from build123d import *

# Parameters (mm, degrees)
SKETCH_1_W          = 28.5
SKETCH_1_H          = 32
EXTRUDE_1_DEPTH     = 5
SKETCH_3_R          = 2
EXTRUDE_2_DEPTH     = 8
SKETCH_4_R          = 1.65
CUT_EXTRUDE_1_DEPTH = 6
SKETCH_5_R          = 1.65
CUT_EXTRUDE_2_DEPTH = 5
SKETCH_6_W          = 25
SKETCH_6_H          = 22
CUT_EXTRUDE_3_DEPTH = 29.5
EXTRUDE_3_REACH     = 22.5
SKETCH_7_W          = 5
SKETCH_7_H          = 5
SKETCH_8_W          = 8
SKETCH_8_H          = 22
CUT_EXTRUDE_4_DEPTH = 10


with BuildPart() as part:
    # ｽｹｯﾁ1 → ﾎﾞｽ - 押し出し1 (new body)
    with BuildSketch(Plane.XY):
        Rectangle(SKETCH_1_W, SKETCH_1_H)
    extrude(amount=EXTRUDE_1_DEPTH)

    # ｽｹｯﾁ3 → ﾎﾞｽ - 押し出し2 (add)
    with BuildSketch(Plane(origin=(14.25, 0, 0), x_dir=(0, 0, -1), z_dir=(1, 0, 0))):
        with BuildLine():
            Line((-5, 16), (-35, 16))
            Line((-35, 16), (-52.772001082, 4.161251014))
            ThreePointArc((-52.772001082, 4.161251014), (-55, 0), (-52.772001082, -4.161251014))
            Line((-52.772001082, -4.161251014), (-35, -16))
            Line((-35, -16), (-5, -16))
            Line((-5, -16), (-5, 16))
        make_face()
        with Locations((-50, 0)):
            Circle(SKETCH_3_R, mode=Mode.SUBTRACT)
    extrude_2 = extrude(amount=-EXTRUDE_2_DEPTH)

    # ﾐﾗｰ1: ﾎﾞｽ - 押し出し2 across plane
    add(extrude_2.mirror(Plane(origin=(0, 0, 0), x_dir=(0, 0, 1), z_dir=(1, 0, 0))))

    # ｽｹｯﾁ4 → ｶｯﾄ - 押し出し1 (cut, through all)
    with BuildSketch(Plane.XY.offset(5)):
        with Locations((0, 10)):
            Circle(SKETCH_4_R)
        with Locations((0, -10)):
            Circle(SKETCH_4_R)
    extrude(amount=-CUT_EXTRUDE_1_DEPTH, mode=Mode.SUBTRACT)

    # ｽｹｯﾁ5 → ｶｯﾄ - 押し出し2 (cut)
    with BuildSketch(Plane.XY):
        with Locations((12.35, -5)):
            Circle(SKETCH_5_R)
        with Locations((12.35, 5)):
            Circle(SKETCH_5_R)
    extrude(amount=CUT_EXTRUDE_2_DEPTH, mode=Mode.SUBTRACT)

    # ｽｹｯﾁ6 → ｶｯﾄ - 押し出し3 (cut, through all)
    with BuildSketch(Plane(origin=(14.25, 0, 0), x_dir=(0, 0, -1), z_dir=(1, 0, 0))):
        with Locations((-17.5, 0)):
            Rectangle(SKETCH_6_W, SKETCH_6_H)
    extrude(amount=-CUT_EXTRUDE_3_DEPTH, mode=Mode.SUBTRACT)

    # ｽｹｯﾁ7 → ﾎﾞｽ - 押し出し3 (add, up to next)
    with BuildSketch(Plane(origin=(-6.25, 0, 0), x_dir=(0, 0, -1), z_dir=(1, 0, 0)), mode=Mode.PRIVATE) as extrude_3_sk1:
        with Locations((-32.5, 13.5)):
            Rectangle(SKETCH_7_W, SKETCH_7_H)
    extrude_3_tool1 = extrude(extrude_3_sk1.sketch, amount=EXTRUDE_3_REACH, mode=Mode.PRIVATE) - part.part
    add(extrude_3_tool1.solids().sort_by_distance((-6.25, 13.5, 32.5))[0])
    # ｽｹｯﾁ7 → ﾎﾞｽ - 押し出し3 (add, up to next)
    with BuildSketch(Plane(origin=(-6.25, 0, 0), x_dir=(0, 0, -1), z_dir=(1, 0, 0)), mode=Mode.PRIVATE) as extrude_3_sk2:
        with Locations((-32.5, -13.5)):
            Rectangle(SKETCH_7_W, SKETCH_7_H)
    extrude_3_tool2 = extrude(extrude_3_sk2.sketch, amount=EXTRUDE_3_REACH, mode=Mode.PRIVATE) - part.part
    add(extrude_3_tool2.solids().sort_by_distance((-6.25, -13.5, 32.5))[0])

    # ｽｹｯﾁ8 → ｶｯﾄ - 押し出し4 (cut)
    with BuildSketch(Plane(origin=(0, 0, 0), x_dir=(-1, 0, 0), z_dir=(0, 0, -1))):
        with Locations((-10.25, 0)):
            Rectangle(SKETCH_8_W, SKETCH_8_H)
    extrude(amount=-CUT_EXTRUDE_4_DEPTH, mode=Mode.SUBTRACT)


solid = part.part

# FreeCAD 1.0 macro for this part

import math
import FreeCAD as App
import Part
import Sketcher

V = App.Vector

doc = App.newDocument("Part")
params = doc.addObject("Spreadsheet::Sheet", "Params")
for row, (alias, value) in enumerate([
    ("sketch1_height", "32 mm"),
    ("sketch1_width", "28.5 mm"),
    ("pad1_length", "5 mm"),
    ("sketch2_diameter", "4 mm"),
    ("sketch2_radius", "5 mm"),
    ("sketch2_width", "32 mm"),
    ("sketch2_height", "30 mm"),
    ("pad2_length", "8 mm"),
    ("sketch3_diameter", "3.3 mm"),
    ("sketch4_diameter", "3.3 mm"),
    ("pocket2_length", "5 mm"),
    ("sketch5_width", "22 mm"),
    ("sketch5_height", "25 mm"),
    ("sketch6_width", "5 mm"),
    ("sketch7_width", "5 mm"),
    ("sketch8_width", "8 mm"),
    ("sketch8_height", "22 mm"),
    ("pocket4_length", "10 mm"),
], start=1):
    params.set(f"A{row}", alias)
    params.set(f"B{row}", "=" + value)
    params.setAlias(f"B{row}", alias)

body = doc.addObject("PartDesign::Body", "Body")

# Sketch on XY plane
sketch1 = doc.addObject("Sketcher::SketchObject", "Sketch")
body.addObject(sketch1)
sketch1.AttachmentSupport = (doc.XY_Plane, [""])
sketch1.MapMode = "FlatFace"
sketch1.addGeometry([
    Part.LineSegment(V(-14, 16, 0), V(-14, -16, 0)),
    Part.LineSegment(V(-14, -16, 0), V(14, -16, 0)),
    Part.LineSegment(V(14, -16, 0), V(14, 16, 0)),
    Part.LineSegment(V(14, 16, 0), V(-14, 16, 0)),
], False)
sketch1.addConstraint([
    Sketcher.Constraint("Coincident", 0, 2, 1, 1),
    Sketcher.Constraint("Coincident", 1, 2, 2, 1),
    Sketcher.Constraint("Coincident", 2, 2, 3, 1),
    Sketcher.Constraint("Coincident", 3, 2, 0, 1),
    Sketcher.Constraint("Vertical", 0),
    Sketcher.Constraint("Horizontal", 1),
    Sketcher.Constraint("Vertical", 2),
    Sketcher.Constraint("Horizontal", 3),
    Sketcher.Constraint("Symmetric", 0, 2, 2, 2, -1, 1),
    Sketcher.Constraint("DistanceY", 0, 2, 0, 1, 32.0),
    Sketcher.Constraint("DistanceX", 1, 1, 1, 2, 28.5),
])
sketch1.setExpression("Constraints[9]", "Params.sketch1_height")
sketch1.setExpression("Constraints[10]", "Params.sketch1_width")
pad1 = doc.addObject("PartDesign::Pad", "Pad")
body.addObject(pad1)
pad1.Profile = sketch1
pad1.setExpression("Length", "Params.pad1_length")

# Sketch on YZ plane
sketch2 = doc.addObject("Sketcher::SketchObject", "Sketch001")
body.addObject(sketch2)
sketch2.AttachmentSupport = (doc.YZ_Plane, [""])
sketch2.MapMode = "FlatFace"
sketch2.AttachmentOffset = App.Placement(V(0, 0, 14.25), App.Rotation())
sketch2.addGeometry([
    Part.LineSegment(V(16, 5, 0), V(16, 35, 0)),  # 0
    Part.LineSegment(V(16, 35, 0), V(4.2, 52.8, 0)),  # 1
    Part.ArcOfCircle(Part.Circle(V(0, 50, 0), V(0, 0, 1), 5), math.radians(34), math.radians(146)),  # 2
    Part.LineSegment(V(-4.2, 52.8, 0), V(-16, 35, 0)),  # 3
    Part.LineSegment(V(-16, 35, 0), V(-16, 5, 0)),  # 4
    Part.LineSegment(V(-16, 5, 0), V(16, 5, 0)),  # 5
    Part.Circle(V(0, 50, 0), V(0, 0, 1), 2),  # 6
], False)
sketch2.addConstraint([
    Sketcher.Constraint("Coincident", 0, 2, 1, 1),
    Sketcher.Constraint("Tangent", 1, 2, 2, 1),
    Sketcher.Constraint("Tangent", 2, 2, 3, 1),
    Sketcher.Constraint("Coincident", 3, 2, 4, 1),
    Sketcher.Constraint("Coincident", 4, 2, 5, 1),
    Sketcher.Constraint("Coincident", 5, 2, 0, 1),
    Sketcher.Constraint("Vertical", 0),
    Sketcher.Constraint("Vertical", 4),
    Sketcher.Constraint("Horizontal", 5),
    Sketcher.Constraint("Coincident", 6, 3, 2, 3),
    Sketcher.Constraint("Symmetric", 1, 2, 2, 2, -2),
    Sketcher.Constraint("Horizontal", 0, 2, 3, 2),
    Sketcher.Constraint("Diameter", 6, 4.0),
    Sketcher.Constraint("Radius", 2, 5.0),
    Sketcher.Constraint("DistanceX", 5, 1, 5, 2, 32.0),
    Sketcher.Constraint("DistanceY", 0, 1, 0, 2, 30.0),
    Sketcher.Constraint("DistanceY", -1, 1, 2, 3, 50.0),
    Sketcher.Constraint("DistanceY", -1, 1, 0, 2, 35.0),
])
sketch2.setExpression("Constraints[12]", "Params.sketch2_diameter")
sketch2.setExpression("Constraints[13]", "Params.sketch2_radius")
sketch2.setExpression("Constraints[14]", "Params.sketch2_width")
sketch2.setExpression("Constraints[15]", "Params.sketch2_height")
pad2 = doc.addObject("PartDesign::Pad", "Pad001")
body.addObject(pad2)
pad2.Profile = sketch2
pad2.setExpression("Length", "Params.pad2_length")
pad2.Reversed = True
doc.recompute()

mirrored = doc.addObject("PartDesign::Mirrored", "Mirrored")
body.addObject(mirrored)
mirrored.Originals = [pad2]
mirrored.MirrorPlane = (doc.YZ_Plane, [""])
body.Tip = mirrored

# Sketch on XY plane
sketch3 = doc.addObject("Sketcher::SketchObject", "Sketch002")
body.addObject(sketch3)
sketch3.AttachmentSupport = (doc.XY_Plane, [""])
sketch3.MapMode = "FlatFace"
sketch3.AttachmentOffset = App.Placement(V(0, 0, 5), App.Rotation())
sketch3.addGeometry([
    Part.Circle(V(0, 10, 0), V(0, 0, 1), 1.6),
    Part.Circle(V(0, -10, 0), V(0, 0, 1), 1.6),
], False)
sketch3.addConstraint([
    Sketcher.Constraint("Equal", 0, 1),
    Sketcher.Constraint("Symmetric", 0, 3, 1, 3, -1, 1),
    Sketcher.Constraint("PointOnObject", 0, 3, -2),
    Sketcher.Constraint("Diameter", 0, 3.3),
    Sketcher.Constraint("DistanceY", -1, 1, 0, 3, 10.0),
])
sketch3.setExpression("Constraints[3]", "Params.sketch3_diameter")
pocket1 = doc.addObject("PartDesign::Pocket", "Pocket")
body.addObject(pocket1)
pocket1.Profile = sketch3
pocket1.Type = "ThroughAll"

# Sketch on XY plane
sketch4 = doc.addObject("Sketcher::SketchObject", "Sketch003")
body.addObject(sketch4)
sketch4.AttachmentSupport = (doc.XY_Plane, [""])
sketch4.MapMode = "FlatFace"
sketch4.addGeometry([
    Part.Circle(V(12.3, -5, 0), V(0, 0, 1), 1.6),
    Part.Circle(V(12.3, 5, 0), V(0, 0, 1), 1.6),
], False)
sketch4.addConstraint([
    Sketcher.Constraint("Equal", 0, 1),
    Sketcher.Constraint("Symmetric", 0, 3, 1, 3, -1),
    Sketcher.Constraint("Diameter", 0, 3.3),
    Sketcher.Constraint("DistanceY", 0, 3, -1, 1, 5.0),
    Sketcher.Constraint("DistanceX", -1, 1, 0, 3, 12.35),
])
sketch4.setExpression("Constraints[2]", "Params.sketch4_diameter")
pocket2 = doc.addObject("PartDesign::Pocket", "Pocket001")
body.addObject(pocket2)
pocket2.Profile = sketch4
pocket2.setExpression("Length", "Params.pocket2_length")
pocket2.Reversed = True

# Sketch on YZ plane
sketch5 = doc.addObject("Sketcher::SketchObject", "Sketch004")
body.addObject(sketch5)
sketch5.AttachmentSupport = (doc.YZ_Plane, [""])
sketch5.MapMode = "FlatFace"
sketch5.AttachmentOffset = App.Placement(V(0, 0, 14.25), App.Rotation())
sketch5.addGeometry([
    Part.LineSegment(V(11, 30, 0), V(-11, 30, 0)),
    Part.LineSegment(V(-11, 30, 0), V(-11, 5, 0)),
    Part.LineSegment(V(-11, 5, 0), V(11, 5, 0)),
    Part.LineSegment(V(11, 5, 0), V(11, 30, 0)),
], False)
sketch5.addConstraint([
    Sketcher.Constraint("Coincident", 0, 2, 1, 1),
    Sketcher.Constraint("Coincident", 1, 2, 2, 1),
    Sketcher.Constraint("Coincident", 2, 2, 3, 1),
    Sketcher.Constraint("Coincident", 3, 2, 0, 1),
    Sketcher.Constraint("Horizontal", 0),
    Sketcher.Constraint("Vertical", 1),
    Sketcher.Constraint("Horizontal", 2),
    Sketcher.Constraint("Vertical", 3),
    Sketcher.Constraint("DistanceX", 0, 2, 0, 1, 22.0),
    Sketcher.Constraint("DistanceY", 1, 2, 1, 1, 25.0),
    Sketcher.Constraint("DistanceX", 0, 2, -1, 1, 11.0),
    Sketcher.Constraint("DistanceY", -1, 1, 0, 2, 30.0),
])
sketch5.setExpression("Constraints[8]", "Params.sketch5_width")
sketch5.setExpression("Constraints[9]", "Params.sketch5_height")
pocket3 = doc.addObject("PartDesign::Pocket", "Pocket002")
body.addObject(pocket3)
pocket3.Profile = sketch5
pocket3.Type = "ThroughAll"

# Sketch on YZ plane
sketch6 = doc.addObject("Sketcher::SketchObject", "Sketch005")
body.addObject(sketch6)
sketch6.AttachmentSupport = (doc.YZ_Plane, [""])
sketch6.MapMode = "FlatFace"
sketch6.AttachmentOffset = App.Placement(V(0, 0, -6.25), App.Rotation())
sketch6.addGeometry([
    Part.LineSegment(V(16, 35, 0), V(11, 35, 0)),
    Part.LineSegment(V(11, 35, 0), V(11, 30, 0)),
    Part.LineSegment(V(11, 30, 0), V(16, 30, 0)),
    Part.LineSegment(V(16, 30, 0), V(16, 35, 0)),
], False)
sketch6.addConstraint([
    Sketcher.Constraint("Coincident", 0, 2, 1, 1),
    Sketcher.Constraint("Coincident", 1, 2, 2, 1),
    Sketcher.Constraint("Coincident", 2, 2, 3, 1),
    Sketcher.Constraint("Coincident", 3, 2, 0, 1),
    Sketcher.Constraint("Horizontal", 0),
    Sketcher.Constraint("Vertical", 1),
    Sketcher.Constraint("Horizontal", 2),
    Sketcher.Constraint("Vertical", 3),
    Sketcher.Constraint("Equal", 2, 1),
    Sketcher.Constraint("DistanceX", 0, 2, 0, 1, 5.0),
    Sketcher.Constraint("DistanceX", -1, 1, 0, 2, 11.0),
    Sketcher.Constraint("DistanceY", -1, 1, 0, 2, 35.0),
])
sketch6.setExpression("Constraints[9]", "Params.sketch6_width")
pad3 = doc.addObject("PartDesign::Pad", "Pad002")
body.addObject(pad3)
pad3.Profile = sketch6
pad3.Type = "UpToFirst"

# Sketch on YZ plane
sketch7 = doc.addObject("Sketcher::SketchObject", "Sketch006")
body.addObject(sketch7)
sketch7.AttachmentSupport = (doc.YZ_Plane, [""])
sketch7.MapMode = "FlatFace"
sketch7.AttachmentOffset = App.Placement(V(0, 0, -6.25), App.Rotation())
sketch7.addGeometry([
    Part.LineSegment(V(-11, 35, 0), V(-16, 35, 0)),
    Part.LineSegment(V(-16, 35, 0), V(-16, 30, 0)),
    Part.LineSegment(V(-16, 30, 0), V(-11, 30, 0)),
    Part.LineSegment(V(-11, 30, 0), V(-11, 35, 0)),
], False)
sketch7.addConstraint([
    Sketcher.Constraint("Coincident", 0, 2, 1, 1),
    Sketcher.Constraint("Coincident", 1, 2, 2, 1),
    Sketcher.Constraint("Coincident", 2, 2, 3, 1),
    Sketcher.Constraint("Coincident", 3, 2, 0, 1),
    Sketcher.Constraint("Horizontal", 0),
    Sketcher.Constraint("Vertical", 1),
    Sketcher.Constraint("Horizontal", 2),
    Sketcher.Constraint("Vertical", 3),
    Sketcher.Constraint("Equal", 2, 1),
    Sketcher.Constraint("DistanceX", 0, 2, 0, 1, 5.0),
    Sketcher.Constraint("DistanceX", 0, 2, -1, 1, 16.0),
    Sketcher.Constraint("DistanceY", -1, 1, 0, 2, 35.0),
])
sketch7.setExpression("Constraints[9]", "Params.sketch7_width")
pad4 = doc.addObject("PartDesign::Pad", "Pad003")
body.addObject(pad4)
pad4.Profile = sketch7
pad4.Type = "UpToFirst"

# Sketch on XY plane
sketch8 = doc.addObject("Sketcher::SketchObject", "Sketch007")
body.addObject(sketch8)
sketch8.AttachmentSupport = (doc.XY_Plane, [""])
sketch8.MapMode = "FlatFace"
sketch8.addGeometry([
    Part.LineSegment(V(14, 11, 0), V(14, -11, 0)),
    Part.LineSegment(V(14, -11, 0), V(6, -11, 0)),
    Part.LineSegment(V(6, -11, 0), V(6, 11, 0)),
    Part.LineSegment(V(6, 11, 0), V(14, 11, 0)),
], False)
sketch8.addConstraint([
    Sketcher.Constraint("Coincident", 0, 2, 1, 1),
    Sketcher.Constraint("Coincident", 1, 2, 2, 1),
    Sketcher.Constraint("Coincident", 2, 2, 3, 1),
    Sketcher.Constraint("Coincident", 3, 2, 0, 1),
    Sketcher.Constraint("Vertical", 0),
    Sketcher.Constraint("Horizontal", 1),
    Sketcher.Constraint("Vertical", 2),
    Sketcher.Constraint("Horizontal", 3),
    Sketcher.Constraint("DistanceX", 1, 2, 1, 1, 8.0),
    Sketcher.Constraint("DistanceY", 0, 2, 0, 1, 22.0),
    Sketcher.Constraint("DistanceY", 0, 2, -1, 1, 11.0),
    Sketcher.Constraint("DistanceX", -1, 1, 0, 2, 14.25),
])
sketch8.setExpression("Constraints[8]", "Params.sketch8_width")
sketch8.setExpression("Constraints[9]", "Params.sketch8_height")
pocket4 = doc.addObject("PartDesign::Pocket", "Pocket003")
body.addObject(pocket4)
pocket4.Profile = sketch8
pocket4.setExpression("Length", "Params.pocket4_length")
pocket4.Reversed = True

doc.recompute()
